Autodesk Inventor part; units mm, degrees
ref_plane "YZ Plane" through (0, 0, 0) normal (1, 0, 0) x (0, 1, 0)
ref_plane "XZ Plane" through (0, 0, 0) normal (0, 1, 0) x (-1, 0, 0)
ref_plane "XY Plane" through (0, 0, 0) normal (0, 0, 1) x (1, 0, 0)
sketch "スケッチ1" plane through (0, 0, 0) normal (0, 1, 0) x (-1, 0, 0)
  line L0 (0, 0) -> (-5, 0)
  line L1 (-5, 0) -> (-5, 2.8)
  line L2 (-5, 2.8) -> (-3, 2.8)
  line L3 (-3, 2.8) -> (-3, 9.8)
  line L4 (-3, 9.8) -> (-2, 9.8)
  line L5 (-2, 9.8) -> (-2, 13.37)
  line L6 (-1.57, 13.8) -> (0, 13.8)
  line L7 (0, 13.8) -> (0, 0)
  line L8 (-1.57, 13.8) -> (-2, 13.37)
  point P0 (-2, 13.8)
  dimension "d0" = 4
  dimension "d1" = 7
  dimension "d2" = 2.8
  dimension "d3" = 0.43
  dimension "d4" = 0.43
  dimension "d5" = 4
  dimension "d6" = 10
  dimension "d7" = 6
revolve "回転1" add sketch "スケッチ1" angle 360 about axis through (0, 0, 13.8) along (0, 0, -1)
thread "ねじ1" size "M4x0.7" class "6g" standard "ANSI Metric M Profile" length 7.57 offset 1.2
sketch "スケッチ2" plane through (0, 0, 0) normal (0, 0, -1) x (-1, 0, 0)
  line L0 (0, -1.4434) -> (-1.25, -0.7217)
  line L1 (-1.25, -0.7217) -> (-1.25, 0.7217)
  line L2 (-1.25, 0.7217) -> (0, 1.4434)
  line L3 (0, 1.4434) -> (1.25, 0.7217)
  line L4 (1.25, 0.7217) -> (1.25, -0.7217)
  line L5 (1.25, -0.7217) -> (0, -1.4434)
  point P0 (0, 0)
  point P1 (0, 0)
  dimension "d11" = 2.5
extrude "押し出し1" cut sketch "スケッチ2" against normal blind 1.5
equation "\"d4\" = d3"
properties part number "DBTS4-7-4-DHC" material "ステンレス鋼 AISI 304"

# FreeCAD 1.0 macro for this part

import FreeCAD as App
import Part
import Sketcher
Q = App.Units.Quantity

doc = App.newDocument("Part")
body = doc.addObject("PartDesign::Body", "Body")

# Sketch on XZ plane
sketch1 = doc.addObject("Sketcher::SketchObject", "Sketch")
body.addObject(sketch1)
sketch1.AttachmentSupport = (doc.XZ_Plane, [""])
sketch1.MapMode = "FlatFace"
sketch1.addGeometry([
    Part.LineSegment(App.Vector(5, 0, 0), App.Vector(0, 0, 0)),  # 0
    Part.LineSegment(App.Vector(0, 0, 0), App.Vector(0, 13.8, 0)),  # 1
    Part.LineSegment(App.Vector(0, 13.8, 0), App.Vector(1.57, 13.8, 0)),  # 2
    Part.LineSegment(App.Vector(1.57, 13.8, 0), App.Vector(2, 13.37, 0)),  # 3
    Part.LineSegment(App.Vector(2, 13.37, 0), App.Vector(2, 9.8, 0)),  # 4
    Part.LineSegment(App.Vector(2, 9.8, 0), App.Vector(3, 9.8, 0)),  # 5
    Part.LineSegment(App.Vector(3, 9.8, 0), App.Vector(3, 2.8, 0)),  # 6
    Part.LineSegment(App.Vector(3, 2.8, 0), App.Vector(5, 2.8, 0)),  # 7
    Part.LineSegment(App.Vector(5, 2.8, 0), App.Vector(5, 0, 0)),  # 8
], False)
sketch1.addConstraint([
    Sketcher.Constraint("Coincident", 0, 2, 1, 1),
    Sketcher.Constraint("Coincident", 1, 2, 2, 1),
    Sketcher.Constraint("Coincident", 2, 2, 3, 1),
    Sketcher.Constraint("Coincident", 3, 2, 4, 1),
    Sketcher.Constraint("Coincident", 4, 2, 5, 1),
    Sketcher.Constraint("Coincident", 5, 2, 6, 1),
    Sketcher.Constraint("Coincident", 6, 2, 7, 1),
    Sketcher.Constraint("Coincident", 7, 2, 8, 1),
    Sketcher.Constraint("Coincident", 8, 2, 0, 1),
    Sketcher.Constraint("Horizontal", 0),
    Sketcher.Constraint("Vertical", 1),
    Sketcher.Constraint("Horizontal", 2),
    Sketcher.Constraint("Vertical", 4),
    Sketcher.Constraint("Horizontal", 5),
    Sketcher.Constraint("Vertical", 6),
    Sketcher.Constraint("Horizontal", 7),
    Sketcher.Constraint("Vertical", 8),
    Sketcher.Constraint("Coincident", 0, 2, -1, 1),
    Sketcher.Constraint("DistanceY", 6, 2, 6, 1, 7.0),
    Sketcher.Constraint("DistanceY", 8, 2, 8, 1, 2.8),
    Sketcher.Constraint("DistanceY", 4, 2, 2, 2, 4.0),
    Sketcher.Constraint("DistanceX", 0, 2, 0, 1, 5.0),
    Sketcher.Constraint("DistanceX", 5, 1, 5, 2, 1.0),
    Sketcher.Constraint("DistanceX", 7, 1, 7, 2, 2.0),
    Sketcher.Constraint("Angle", 3, Q("-45 deg")),
    Sketcher.Constraint("DistanceX", 2, 2, 3, 2, 0.43),
])
revolution = doc.addObject("PartDesign::Revolution", "Revolution")
body.addObject(revolution)
revolution.Profile = sketch1
revolution.ReferenceAxis = (sketch1, ["V_Axis"])
revolution.Angle = 360

# Sketch on XY plane
sketch2 = doc.addObject("Sketcher::SketchObject", "Sketch001")
body.addObject(sketch2)
sketch2.AttachmentSupport = (doc.XY_Plane, [""])
sketch2.MapMode = "FlatFace"
sketch2.addGeometry([
    Part.LineSegment(App.Vector(1.25, -0.7217, 0), App.Vector(0, -1.4434, 0)),  # 0
    Part.LineSegment(App.Vector(0, -1.4434, 0), App.Vector(-1.25, -0.7217, 0)),  # 1
    Part.LineSegment(App.Vector(-1.25, -0.7217, 0), App.Vector(-1.25, 0.7217, 0)),  # 2
    Part.LineSegment(App.Vector(-1.25, 0.7217, 0), App.Vector(0, 1.4434, 0)),  # 3
    Part.LineSegment(App.Vector(0, 1.4434, 0), App.Vector(1.25, 0.7217, 0)),  # 4
    Part.LineSegment(App.Vector(1.25, 0.7217, 0), App.Vector(1.25, -0.7217, 0)),  # 5
], False)
sketch2.addConstraint([
    Sketcher.Constraint("Coincident", 0, 2, 1, 1),
    Sketcher.Constraint("Coincident", 1, 2, 2, 1),
    Sketcher.Constraint("Coincident", 2, 2, 3, 1),
    Sketcher.Constraint("Coincident", 3, 2, 4, 1),
    Sketcher.Constraint("Coincident", 4, 2, 5, 1),
    Sketcher.Constraint("Coincident", 5, 2, 0, 1),
    Sketcher.Constraint("Vertical", 2),
    Sketcher.Constraint("Vertical", 5),
    Sketcher.Constraint("Symmetric", 0, 2, 3, 2, -1, 1),
    Sketcher.Constraint("Symmetric", 1, 2, 4, 2, -1, 1),
    Sketcher.Constraint("PointOnObject", 0, 2, -2),
    Sketcher.Constraint("Parallel", 0, 3),
    Sketcher.Constraint("Horizontal", 2, 2, 4, 2),
    Sketcher.Constraint("DistanceX", 2, 2, 4, 2, 2.5),
    Sketcher.Constraint("Angle", 0, Q("-149.9996 deg")),
    Sketcher.Constraint("DistanceY", 2, 1, 2, 2, 1.4434),
])
pocket1 = doc.addObject("PartDesign::Pocket", "Pocket")
body.addObject(pocket1)
pocket1.Profile = sketch2
pocket1.Length = 1.5
pocket1.Reversed = True

doc.recompute()
